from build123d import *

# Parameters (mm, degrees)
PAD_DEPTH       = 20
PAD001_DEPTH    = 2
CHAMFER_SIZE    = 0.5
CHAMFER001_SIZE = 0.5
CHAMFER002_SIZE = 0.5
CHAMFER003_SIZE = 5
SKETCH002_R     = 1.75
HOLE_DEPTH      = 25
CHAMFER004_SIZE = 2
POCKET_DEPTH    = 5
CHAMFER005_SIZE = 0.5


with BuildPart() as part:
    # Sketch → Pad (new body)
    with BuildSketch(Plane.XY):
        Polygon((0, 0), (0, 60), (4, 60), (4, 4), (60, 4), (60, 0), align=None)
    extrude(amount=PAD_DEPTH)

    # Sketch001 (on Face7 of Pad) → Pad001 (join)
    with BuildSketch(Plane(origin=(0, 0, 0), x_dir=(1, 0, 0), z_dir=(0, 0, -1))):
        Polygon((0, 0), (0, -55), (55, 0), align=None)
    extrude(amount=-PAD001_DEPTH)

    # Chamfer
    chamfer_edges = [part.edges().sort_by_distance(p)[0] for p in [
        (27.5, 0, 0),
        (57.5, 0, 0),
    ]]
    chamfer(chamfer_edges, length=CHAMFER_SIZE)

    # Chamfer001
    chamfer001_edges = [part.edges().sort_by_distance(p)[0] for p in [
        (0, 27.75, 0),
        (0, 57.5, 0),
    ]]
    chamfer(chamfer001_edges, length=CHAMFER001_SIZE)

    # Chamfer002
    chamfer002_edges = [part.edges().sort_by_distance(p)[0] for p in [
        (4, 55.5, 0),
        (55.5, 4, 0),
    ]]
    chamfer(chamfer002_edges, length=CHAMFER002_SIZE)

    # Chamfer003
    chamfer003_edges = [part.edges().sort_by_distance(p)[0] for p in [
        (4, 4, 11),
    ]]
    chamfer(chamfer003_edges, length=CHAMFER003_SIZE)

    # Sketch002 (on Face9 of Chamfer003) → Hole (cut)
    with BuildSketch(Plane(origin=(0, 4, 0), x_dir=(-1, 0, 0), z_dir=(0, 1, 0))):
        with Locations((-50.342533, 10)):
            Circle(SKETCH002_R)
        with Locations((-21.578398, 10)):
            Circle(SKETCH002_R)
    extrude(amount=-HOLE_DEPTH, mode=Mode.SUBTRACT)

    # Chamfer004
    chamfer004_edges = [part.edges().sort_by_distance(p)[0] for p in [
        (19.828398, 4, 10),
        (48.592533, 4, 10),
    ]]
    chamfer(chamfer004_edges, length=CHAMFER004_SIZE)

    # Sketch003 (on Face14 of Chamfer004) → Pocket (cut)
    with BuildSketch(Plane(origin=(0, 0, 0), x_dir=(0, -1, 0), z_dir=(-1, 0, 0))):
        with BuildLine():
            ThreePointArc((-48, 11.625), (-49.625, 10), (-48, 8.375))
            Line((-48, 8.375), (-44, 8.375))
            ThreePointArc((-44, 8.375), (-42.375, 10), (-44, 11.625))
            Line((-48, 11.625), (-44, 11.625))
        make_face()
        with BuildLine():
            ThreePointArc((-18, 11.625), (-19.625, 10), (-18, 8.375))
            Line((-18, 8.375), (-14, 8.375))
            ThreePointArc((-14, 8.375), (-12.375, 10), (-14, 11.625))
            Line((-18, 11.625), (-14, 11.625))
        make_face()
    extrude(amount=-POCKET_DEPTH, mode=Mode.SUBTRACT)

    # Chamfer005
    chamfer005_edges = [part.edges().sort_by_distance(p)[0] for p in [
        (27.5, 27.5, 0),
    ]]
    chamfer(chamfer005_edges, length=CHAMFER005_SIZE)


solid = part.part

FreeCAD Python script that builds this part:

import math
import FreeCAD as App
import Part
import Sketcher

V = App.Vector


def edges_at(feature, points):
    """Names of the edges that pass closest to the given points."""
    edges = feature.Shape.Edges
    near = lambda p: min(range(len(edges)), key=lambda i: edges[i].distToShape(Part.Vertex(*p))[0])
    return sorted({f"Edge{near(p) + 1}" for p in points})

doc = App.newDocument("Part")
body = doc.addObject("PartDesign::Body", "Body")

# Sketch on XY plane
sketch1 = body.newObject("Sketcher::SketchObject", "Sketch")
sketch1.AttachmentSupport = (doc.getObject("XY_Plane"), [""])
sketch1.MapMode = "FlatFace"
sketch1.addGeometry(Part.LineSegment(V(0, 60, 0), V(0, 0, 0)), False)
sketch1.addGeometry(Part.LineSegment(V(0, 0, 0), V(60, 0, 0)), False)
sketch1.addGeometry(Part.LineSegment(V(60, 0, 0), V(60, 4, 0)), False)
sketch1.addGeometry(Part.LineSegment(V(60, 4, 0), V(4, 4, 0)), False)
sketch1.addGeometry(Part.LineSegment(V(4, 4, 0), V(4, 60, 0)), False)
sketch1.addGeometry(Part.LineSegment(V(4, 60, 0), V(0, 60, 0)), False)
sketch1.addConstraint(Sketcher.Constraint("Coincident", 0, 2, 1, 1))
sketch1.addConstraint(Sketcher.Constraint("Coincident", 1, 2, 2, 1))
sketch1.addConstraint(Sketcher.Constraint("Coincident", 2, 2, 3, 1))
sketch1.addConstraint(Sketcher.Constraint("Coincident", 3, 2, 4, 1))
sketch1.addConstraint(Sketcher.Constraint("Coincident", 4, 2, 5, 1))
sketch1.addConstraint(Sketcher.Constraint("Coincident", 5, 2, 0, 1))
sketch1.addConstraint(Sketcher.Constraint("Vertical", 0))
sketch1.addConstraint(Sketcher.Constraint("Horizontal", 1))
sketch1.addConstraint(Sketcher.Constraint("Vertical", 2))
sketch1.addConstraint(Sketcher.Constraint("Horizontal", 3))
sketch1.addConstraint(Sketcher.Constraint("Vertical", 4))
sketch1.addConstraint(Sketcher.Constraint("Horizontal", 5))
sketch1.addConstraint(Sketcher.Constraint("Coincident", 0, 2, -1, 1))
sketch1.addConstraint(Sketcher.Constraint("Equal", 1, 0))
sketch1.addConstraint(Sketcher.Constraint("Equal", 5, 2))
sketch1.addConstraint(Sketcher.Constraint("DistanceX", 1, 1, 1, 2, 60.0))
sketch1.addConstraint(Sketcher.Constraint("DistanceX", 3, 2, 3, 1, 56.0))
pad1 = body.newObject("PartDesign::Pad", "Pad")
pad1.Profile = sketch1
pad1.Length = 20

# Sketch on XY plane
sketch2 = body.newObject("Sketcher::SketchObject", "Sketch001")
sketch2.AttachmentSupport = (doc.getObject("XY_Plane"), [""])
sketch2.MapMode = "FlatFace"
sketch2.addGeometry(Part.LineSegment(V(0, 0, 0), V(0, 55, 0)), False)
sketch2.addGeometry(Part.LineSegment(V(0, 55, 0), V(55, 0, 0)), False)
sketch2.addGeometry(Part.LineSegment(V(55, 0, 0), V(0, 0, 0)), False)
sketch2.addConstraint(Sketcher.Constraint("Coincident", 0, 2, 1, 1))
sketch2.addConstraint(Sketcher.Constraint("Coincident", 1, 2, 2, 1))
sketch2.addConstraint(Sketcher.Constraint("Coincident", 2, 2, 0, 1))
sketch2.addConstraint(Sketcher.Constraint("Vertical", 0))
sketch2.addConstraint(Sketcher.Constraint("Horizontal", 2))
sketch2.addConstraint(Sketcher.Constraint("Coincident", 2, 2, -1, 1))
sketch2.addConstraint(Sketcher.Constraint("Equal", 2, 0))
sketch2.addConstraint(Sketcher.Constraint("DistanceX", 2, 2, 2, 1, 55.0))
pad2 = body.newObject("PartDesign::Pad", "Pad001")
pad2.Profile = sketch2
pad2.Length = 2
doc.recompute()

chamfer = body.newObject("PartDesign::Chamfer", "Chamfer")
chamfer.Base = (pad2, edges_at(pad2, [(30, 0, 0), (30, 0, 0)]))
chamfer.Size = 0.5
doc.recompute()

chamfer2 = body.newObject("PartDesign::Chamfer", "Chamfer001")
chamfer2.Base = (chamfer, edges_at(chamfer, [(0, 30.25, 0), (0, 30.25, 0)]))
chamfer2.Size = 0.5
doc.recompute()

chamfer3 = body.newObject("PartDesign::Chamfer", "Chamfer002")
chamfer3.Base = (chamfer2, edges_at(chamfer2, [(4, 55.5, 0), (55.5, 4, 0)]))
chamfer3.Size = 0.5
doc.recompute()

chamfer4 = body.newObject("PartDesign::Chamfer", "Chamfer003")
chamfer4.Base = (chamfer3, edges_at(chamfer3, [(4, 4, 11)]))
chamfer4.Size = 5

# Sketch on XZ plane
sketch3 = body.newObject("Sketcher::SketchObject", "Sketch002")
sketch3.AttachmentSupport = (doc.getObject("XZ_Plane"), [""])
sketch3.MapMode = "FlatFace"
sketch3.AttachmentOffset = App.Placement(V(0, 0, -4), App.Rotation())
sketch3.addGeometry(Part.Circle(V(50.3, 10, 0), V(0, 0, 1), 1.8), False)
sketch3.addGeometry(Part.Circle(V(21.6, 10, 0), V(0, 0, 1), 1.8), False)
sketch3.addConstraint(Sketcher.Constraint("Equal", 0, 1))
sketch3.addConstraint(Sketcher.Constraint("Horizontal", 0, 3, 1, 3))
sketch3.addConstraint(Sketcher.Constraint("Diameter", 0, 3.5))
sketch3.addConstraint(Sketcher.Constraint("DistanceY", -1, 1, 0, 3, 10.0))
sketch3.addConstraint(Sketcher.Constraint("DistanceX", -1, 1, 1, 3, 21.578398))
sketch3.addConstraint(Sketcher.Constraint("DistanceX", -1, 1, 0, 3, 50.342533))
pocket1 = body.newObject("PartDesign::Pocket", "Pocket")
pocket1.Profile = sketch3
pocket1.Length = 25
pocket1.Reversed = True
doc.recompute()

chamfer5 = body.newObject("PartDesign::Chamfer", "Chamfer004")
chamfer5.Base = (pocket1, edges_at(pocket1, [(23.328, 4, 10), (52.093, 4, 10)]))
chamfer5.Size = 2

# Sketch on YZ plane
sketch4 = body.newObject("Sketcher::SketchObject", "Sketch003")
sketch4.AttachmentSupport = (doc.getObject("YZ_Plane"), [""])
sketch4.MapMode = "FlatFace"
sketch4.addGeometry(Part.ArcOfCircle(Part.Circle(V(48, 10, 0), V(0, 0, 1), 1.6), math.radians(-90), math.radians(90)), False)
sketch4.addGeometry(Part.LineSegment(V(48, 8.4, 0), V(44, 8.4, 0)), False)
sketch4.addGeometry(Part.ArcOfCircle(Part.Circle(V(44, 10, 0), V(0, 0, 1), 1.6), math.radians(90), math.radians(270)), False)
sketch4.addGeometry(Part.LineSegment(V(44, 11.6, 0), V(48, 11.6, 0)), False)
sketch4.addGeometry(Part.ArcOfCircle(Part.Circle(V(18, 10, 0), V(0, 0, 1), 1.6), math.radians(-90), math.radians(90)), False)
sketch4.addGeometry(Part.LineSegment(V(18, 8.4, 0), V(14, 8.4, 0)), False)
sketch4.addGeometry(Part.ArcOfCircle(Part.Circle(V(14, 10, 0), V(0, 0, 1), 1.6), math.radians(90), math.radians(270)), False)
sketch4.addGeometry(Part.LineSegment(V(14, 11.6, 0), V(18, 11.6, 0)), False)
sketch4.addConstraint(Sketcher.Constraint("Tangent", 0, 1, 1, 1))
sketch4.addConstraint(Sketcher.Constraint("Tangent", 1, 2, 2, 2))
sketch4.addConstraint(Sketcher.Constraint("Tangent", 2, 1, 3, 1))
sketch4.addConstraint(Sketcher.Constraint("Tangent", 3, 2, 0, 2))
sketch4.addConstraint(Sketcher.Constraint("Tangent", 4, 1, 5, 1))
sketch4.addConstraint(Sketcher.Constraint("Tangent", 5, 2, 6, 2))
sketch4.addConstraint(Sketcher.Constraint("Tangent", 6, 1, 7, 1))
sketch4.addConstraint(Sketcher.Constraint("Tangent", 7, 2, 4, 2))
sketch4.addConstraint(Sketcher.Constraint("Horizontal", 1))
sketch4.addConstraint(Sketcher.Constraint("Horizontal", 3))
sketch4.addConstraint(Sketcher.Constraint("Horizontal", 5))
sketch4.addConstraint(Sketcher.Constraint("Horizontal", 7))
sketch4.addConstraint(Sketcher.Constraint("Equal", 2, 4))
sketch4.addConstraint(Sketcher.Constraint("Horizontal", 2, 3, 4, 3))
sketch4.addConstraint(Sketcher.Constraint("Equal", 3, 5))
sketch4.addConstraint(Sketcher.Constraint("DistanceX", 1, 2, 1, 1, 4.0))
sketch4.addConstraint(Sketcher.Constraint("DistanceX", -1, 1, 0, 3, 48.0))
sketch4.addConstraint(Sketcher.Constraint("DistanceY", -1, 1, 0, 3, 10.0))
sketch4.addConstraint(Sketcher.Constraint("DistanceX", -1, 1, 4, 3, 18.0))
sketch4.addConstraint(Sketcher.Constraint("Radius", 0, 1.625))
pocket2 = body.newObject("PartDesign::Pocket", "Pocket001")
pocket2.Profile = sketch4
pocket2.Length = 5
pocket2.Reversed = True
doc.recompute()

chamfer6 = body.newObject("PartDesign::Chamfer", "Chamfer005")
chamfer6.Base = (pocket2, edges_at(pocket2, [(27.5, 27.5, 0)]))
chamfer6.Size = 0.5

doc.recompute()
